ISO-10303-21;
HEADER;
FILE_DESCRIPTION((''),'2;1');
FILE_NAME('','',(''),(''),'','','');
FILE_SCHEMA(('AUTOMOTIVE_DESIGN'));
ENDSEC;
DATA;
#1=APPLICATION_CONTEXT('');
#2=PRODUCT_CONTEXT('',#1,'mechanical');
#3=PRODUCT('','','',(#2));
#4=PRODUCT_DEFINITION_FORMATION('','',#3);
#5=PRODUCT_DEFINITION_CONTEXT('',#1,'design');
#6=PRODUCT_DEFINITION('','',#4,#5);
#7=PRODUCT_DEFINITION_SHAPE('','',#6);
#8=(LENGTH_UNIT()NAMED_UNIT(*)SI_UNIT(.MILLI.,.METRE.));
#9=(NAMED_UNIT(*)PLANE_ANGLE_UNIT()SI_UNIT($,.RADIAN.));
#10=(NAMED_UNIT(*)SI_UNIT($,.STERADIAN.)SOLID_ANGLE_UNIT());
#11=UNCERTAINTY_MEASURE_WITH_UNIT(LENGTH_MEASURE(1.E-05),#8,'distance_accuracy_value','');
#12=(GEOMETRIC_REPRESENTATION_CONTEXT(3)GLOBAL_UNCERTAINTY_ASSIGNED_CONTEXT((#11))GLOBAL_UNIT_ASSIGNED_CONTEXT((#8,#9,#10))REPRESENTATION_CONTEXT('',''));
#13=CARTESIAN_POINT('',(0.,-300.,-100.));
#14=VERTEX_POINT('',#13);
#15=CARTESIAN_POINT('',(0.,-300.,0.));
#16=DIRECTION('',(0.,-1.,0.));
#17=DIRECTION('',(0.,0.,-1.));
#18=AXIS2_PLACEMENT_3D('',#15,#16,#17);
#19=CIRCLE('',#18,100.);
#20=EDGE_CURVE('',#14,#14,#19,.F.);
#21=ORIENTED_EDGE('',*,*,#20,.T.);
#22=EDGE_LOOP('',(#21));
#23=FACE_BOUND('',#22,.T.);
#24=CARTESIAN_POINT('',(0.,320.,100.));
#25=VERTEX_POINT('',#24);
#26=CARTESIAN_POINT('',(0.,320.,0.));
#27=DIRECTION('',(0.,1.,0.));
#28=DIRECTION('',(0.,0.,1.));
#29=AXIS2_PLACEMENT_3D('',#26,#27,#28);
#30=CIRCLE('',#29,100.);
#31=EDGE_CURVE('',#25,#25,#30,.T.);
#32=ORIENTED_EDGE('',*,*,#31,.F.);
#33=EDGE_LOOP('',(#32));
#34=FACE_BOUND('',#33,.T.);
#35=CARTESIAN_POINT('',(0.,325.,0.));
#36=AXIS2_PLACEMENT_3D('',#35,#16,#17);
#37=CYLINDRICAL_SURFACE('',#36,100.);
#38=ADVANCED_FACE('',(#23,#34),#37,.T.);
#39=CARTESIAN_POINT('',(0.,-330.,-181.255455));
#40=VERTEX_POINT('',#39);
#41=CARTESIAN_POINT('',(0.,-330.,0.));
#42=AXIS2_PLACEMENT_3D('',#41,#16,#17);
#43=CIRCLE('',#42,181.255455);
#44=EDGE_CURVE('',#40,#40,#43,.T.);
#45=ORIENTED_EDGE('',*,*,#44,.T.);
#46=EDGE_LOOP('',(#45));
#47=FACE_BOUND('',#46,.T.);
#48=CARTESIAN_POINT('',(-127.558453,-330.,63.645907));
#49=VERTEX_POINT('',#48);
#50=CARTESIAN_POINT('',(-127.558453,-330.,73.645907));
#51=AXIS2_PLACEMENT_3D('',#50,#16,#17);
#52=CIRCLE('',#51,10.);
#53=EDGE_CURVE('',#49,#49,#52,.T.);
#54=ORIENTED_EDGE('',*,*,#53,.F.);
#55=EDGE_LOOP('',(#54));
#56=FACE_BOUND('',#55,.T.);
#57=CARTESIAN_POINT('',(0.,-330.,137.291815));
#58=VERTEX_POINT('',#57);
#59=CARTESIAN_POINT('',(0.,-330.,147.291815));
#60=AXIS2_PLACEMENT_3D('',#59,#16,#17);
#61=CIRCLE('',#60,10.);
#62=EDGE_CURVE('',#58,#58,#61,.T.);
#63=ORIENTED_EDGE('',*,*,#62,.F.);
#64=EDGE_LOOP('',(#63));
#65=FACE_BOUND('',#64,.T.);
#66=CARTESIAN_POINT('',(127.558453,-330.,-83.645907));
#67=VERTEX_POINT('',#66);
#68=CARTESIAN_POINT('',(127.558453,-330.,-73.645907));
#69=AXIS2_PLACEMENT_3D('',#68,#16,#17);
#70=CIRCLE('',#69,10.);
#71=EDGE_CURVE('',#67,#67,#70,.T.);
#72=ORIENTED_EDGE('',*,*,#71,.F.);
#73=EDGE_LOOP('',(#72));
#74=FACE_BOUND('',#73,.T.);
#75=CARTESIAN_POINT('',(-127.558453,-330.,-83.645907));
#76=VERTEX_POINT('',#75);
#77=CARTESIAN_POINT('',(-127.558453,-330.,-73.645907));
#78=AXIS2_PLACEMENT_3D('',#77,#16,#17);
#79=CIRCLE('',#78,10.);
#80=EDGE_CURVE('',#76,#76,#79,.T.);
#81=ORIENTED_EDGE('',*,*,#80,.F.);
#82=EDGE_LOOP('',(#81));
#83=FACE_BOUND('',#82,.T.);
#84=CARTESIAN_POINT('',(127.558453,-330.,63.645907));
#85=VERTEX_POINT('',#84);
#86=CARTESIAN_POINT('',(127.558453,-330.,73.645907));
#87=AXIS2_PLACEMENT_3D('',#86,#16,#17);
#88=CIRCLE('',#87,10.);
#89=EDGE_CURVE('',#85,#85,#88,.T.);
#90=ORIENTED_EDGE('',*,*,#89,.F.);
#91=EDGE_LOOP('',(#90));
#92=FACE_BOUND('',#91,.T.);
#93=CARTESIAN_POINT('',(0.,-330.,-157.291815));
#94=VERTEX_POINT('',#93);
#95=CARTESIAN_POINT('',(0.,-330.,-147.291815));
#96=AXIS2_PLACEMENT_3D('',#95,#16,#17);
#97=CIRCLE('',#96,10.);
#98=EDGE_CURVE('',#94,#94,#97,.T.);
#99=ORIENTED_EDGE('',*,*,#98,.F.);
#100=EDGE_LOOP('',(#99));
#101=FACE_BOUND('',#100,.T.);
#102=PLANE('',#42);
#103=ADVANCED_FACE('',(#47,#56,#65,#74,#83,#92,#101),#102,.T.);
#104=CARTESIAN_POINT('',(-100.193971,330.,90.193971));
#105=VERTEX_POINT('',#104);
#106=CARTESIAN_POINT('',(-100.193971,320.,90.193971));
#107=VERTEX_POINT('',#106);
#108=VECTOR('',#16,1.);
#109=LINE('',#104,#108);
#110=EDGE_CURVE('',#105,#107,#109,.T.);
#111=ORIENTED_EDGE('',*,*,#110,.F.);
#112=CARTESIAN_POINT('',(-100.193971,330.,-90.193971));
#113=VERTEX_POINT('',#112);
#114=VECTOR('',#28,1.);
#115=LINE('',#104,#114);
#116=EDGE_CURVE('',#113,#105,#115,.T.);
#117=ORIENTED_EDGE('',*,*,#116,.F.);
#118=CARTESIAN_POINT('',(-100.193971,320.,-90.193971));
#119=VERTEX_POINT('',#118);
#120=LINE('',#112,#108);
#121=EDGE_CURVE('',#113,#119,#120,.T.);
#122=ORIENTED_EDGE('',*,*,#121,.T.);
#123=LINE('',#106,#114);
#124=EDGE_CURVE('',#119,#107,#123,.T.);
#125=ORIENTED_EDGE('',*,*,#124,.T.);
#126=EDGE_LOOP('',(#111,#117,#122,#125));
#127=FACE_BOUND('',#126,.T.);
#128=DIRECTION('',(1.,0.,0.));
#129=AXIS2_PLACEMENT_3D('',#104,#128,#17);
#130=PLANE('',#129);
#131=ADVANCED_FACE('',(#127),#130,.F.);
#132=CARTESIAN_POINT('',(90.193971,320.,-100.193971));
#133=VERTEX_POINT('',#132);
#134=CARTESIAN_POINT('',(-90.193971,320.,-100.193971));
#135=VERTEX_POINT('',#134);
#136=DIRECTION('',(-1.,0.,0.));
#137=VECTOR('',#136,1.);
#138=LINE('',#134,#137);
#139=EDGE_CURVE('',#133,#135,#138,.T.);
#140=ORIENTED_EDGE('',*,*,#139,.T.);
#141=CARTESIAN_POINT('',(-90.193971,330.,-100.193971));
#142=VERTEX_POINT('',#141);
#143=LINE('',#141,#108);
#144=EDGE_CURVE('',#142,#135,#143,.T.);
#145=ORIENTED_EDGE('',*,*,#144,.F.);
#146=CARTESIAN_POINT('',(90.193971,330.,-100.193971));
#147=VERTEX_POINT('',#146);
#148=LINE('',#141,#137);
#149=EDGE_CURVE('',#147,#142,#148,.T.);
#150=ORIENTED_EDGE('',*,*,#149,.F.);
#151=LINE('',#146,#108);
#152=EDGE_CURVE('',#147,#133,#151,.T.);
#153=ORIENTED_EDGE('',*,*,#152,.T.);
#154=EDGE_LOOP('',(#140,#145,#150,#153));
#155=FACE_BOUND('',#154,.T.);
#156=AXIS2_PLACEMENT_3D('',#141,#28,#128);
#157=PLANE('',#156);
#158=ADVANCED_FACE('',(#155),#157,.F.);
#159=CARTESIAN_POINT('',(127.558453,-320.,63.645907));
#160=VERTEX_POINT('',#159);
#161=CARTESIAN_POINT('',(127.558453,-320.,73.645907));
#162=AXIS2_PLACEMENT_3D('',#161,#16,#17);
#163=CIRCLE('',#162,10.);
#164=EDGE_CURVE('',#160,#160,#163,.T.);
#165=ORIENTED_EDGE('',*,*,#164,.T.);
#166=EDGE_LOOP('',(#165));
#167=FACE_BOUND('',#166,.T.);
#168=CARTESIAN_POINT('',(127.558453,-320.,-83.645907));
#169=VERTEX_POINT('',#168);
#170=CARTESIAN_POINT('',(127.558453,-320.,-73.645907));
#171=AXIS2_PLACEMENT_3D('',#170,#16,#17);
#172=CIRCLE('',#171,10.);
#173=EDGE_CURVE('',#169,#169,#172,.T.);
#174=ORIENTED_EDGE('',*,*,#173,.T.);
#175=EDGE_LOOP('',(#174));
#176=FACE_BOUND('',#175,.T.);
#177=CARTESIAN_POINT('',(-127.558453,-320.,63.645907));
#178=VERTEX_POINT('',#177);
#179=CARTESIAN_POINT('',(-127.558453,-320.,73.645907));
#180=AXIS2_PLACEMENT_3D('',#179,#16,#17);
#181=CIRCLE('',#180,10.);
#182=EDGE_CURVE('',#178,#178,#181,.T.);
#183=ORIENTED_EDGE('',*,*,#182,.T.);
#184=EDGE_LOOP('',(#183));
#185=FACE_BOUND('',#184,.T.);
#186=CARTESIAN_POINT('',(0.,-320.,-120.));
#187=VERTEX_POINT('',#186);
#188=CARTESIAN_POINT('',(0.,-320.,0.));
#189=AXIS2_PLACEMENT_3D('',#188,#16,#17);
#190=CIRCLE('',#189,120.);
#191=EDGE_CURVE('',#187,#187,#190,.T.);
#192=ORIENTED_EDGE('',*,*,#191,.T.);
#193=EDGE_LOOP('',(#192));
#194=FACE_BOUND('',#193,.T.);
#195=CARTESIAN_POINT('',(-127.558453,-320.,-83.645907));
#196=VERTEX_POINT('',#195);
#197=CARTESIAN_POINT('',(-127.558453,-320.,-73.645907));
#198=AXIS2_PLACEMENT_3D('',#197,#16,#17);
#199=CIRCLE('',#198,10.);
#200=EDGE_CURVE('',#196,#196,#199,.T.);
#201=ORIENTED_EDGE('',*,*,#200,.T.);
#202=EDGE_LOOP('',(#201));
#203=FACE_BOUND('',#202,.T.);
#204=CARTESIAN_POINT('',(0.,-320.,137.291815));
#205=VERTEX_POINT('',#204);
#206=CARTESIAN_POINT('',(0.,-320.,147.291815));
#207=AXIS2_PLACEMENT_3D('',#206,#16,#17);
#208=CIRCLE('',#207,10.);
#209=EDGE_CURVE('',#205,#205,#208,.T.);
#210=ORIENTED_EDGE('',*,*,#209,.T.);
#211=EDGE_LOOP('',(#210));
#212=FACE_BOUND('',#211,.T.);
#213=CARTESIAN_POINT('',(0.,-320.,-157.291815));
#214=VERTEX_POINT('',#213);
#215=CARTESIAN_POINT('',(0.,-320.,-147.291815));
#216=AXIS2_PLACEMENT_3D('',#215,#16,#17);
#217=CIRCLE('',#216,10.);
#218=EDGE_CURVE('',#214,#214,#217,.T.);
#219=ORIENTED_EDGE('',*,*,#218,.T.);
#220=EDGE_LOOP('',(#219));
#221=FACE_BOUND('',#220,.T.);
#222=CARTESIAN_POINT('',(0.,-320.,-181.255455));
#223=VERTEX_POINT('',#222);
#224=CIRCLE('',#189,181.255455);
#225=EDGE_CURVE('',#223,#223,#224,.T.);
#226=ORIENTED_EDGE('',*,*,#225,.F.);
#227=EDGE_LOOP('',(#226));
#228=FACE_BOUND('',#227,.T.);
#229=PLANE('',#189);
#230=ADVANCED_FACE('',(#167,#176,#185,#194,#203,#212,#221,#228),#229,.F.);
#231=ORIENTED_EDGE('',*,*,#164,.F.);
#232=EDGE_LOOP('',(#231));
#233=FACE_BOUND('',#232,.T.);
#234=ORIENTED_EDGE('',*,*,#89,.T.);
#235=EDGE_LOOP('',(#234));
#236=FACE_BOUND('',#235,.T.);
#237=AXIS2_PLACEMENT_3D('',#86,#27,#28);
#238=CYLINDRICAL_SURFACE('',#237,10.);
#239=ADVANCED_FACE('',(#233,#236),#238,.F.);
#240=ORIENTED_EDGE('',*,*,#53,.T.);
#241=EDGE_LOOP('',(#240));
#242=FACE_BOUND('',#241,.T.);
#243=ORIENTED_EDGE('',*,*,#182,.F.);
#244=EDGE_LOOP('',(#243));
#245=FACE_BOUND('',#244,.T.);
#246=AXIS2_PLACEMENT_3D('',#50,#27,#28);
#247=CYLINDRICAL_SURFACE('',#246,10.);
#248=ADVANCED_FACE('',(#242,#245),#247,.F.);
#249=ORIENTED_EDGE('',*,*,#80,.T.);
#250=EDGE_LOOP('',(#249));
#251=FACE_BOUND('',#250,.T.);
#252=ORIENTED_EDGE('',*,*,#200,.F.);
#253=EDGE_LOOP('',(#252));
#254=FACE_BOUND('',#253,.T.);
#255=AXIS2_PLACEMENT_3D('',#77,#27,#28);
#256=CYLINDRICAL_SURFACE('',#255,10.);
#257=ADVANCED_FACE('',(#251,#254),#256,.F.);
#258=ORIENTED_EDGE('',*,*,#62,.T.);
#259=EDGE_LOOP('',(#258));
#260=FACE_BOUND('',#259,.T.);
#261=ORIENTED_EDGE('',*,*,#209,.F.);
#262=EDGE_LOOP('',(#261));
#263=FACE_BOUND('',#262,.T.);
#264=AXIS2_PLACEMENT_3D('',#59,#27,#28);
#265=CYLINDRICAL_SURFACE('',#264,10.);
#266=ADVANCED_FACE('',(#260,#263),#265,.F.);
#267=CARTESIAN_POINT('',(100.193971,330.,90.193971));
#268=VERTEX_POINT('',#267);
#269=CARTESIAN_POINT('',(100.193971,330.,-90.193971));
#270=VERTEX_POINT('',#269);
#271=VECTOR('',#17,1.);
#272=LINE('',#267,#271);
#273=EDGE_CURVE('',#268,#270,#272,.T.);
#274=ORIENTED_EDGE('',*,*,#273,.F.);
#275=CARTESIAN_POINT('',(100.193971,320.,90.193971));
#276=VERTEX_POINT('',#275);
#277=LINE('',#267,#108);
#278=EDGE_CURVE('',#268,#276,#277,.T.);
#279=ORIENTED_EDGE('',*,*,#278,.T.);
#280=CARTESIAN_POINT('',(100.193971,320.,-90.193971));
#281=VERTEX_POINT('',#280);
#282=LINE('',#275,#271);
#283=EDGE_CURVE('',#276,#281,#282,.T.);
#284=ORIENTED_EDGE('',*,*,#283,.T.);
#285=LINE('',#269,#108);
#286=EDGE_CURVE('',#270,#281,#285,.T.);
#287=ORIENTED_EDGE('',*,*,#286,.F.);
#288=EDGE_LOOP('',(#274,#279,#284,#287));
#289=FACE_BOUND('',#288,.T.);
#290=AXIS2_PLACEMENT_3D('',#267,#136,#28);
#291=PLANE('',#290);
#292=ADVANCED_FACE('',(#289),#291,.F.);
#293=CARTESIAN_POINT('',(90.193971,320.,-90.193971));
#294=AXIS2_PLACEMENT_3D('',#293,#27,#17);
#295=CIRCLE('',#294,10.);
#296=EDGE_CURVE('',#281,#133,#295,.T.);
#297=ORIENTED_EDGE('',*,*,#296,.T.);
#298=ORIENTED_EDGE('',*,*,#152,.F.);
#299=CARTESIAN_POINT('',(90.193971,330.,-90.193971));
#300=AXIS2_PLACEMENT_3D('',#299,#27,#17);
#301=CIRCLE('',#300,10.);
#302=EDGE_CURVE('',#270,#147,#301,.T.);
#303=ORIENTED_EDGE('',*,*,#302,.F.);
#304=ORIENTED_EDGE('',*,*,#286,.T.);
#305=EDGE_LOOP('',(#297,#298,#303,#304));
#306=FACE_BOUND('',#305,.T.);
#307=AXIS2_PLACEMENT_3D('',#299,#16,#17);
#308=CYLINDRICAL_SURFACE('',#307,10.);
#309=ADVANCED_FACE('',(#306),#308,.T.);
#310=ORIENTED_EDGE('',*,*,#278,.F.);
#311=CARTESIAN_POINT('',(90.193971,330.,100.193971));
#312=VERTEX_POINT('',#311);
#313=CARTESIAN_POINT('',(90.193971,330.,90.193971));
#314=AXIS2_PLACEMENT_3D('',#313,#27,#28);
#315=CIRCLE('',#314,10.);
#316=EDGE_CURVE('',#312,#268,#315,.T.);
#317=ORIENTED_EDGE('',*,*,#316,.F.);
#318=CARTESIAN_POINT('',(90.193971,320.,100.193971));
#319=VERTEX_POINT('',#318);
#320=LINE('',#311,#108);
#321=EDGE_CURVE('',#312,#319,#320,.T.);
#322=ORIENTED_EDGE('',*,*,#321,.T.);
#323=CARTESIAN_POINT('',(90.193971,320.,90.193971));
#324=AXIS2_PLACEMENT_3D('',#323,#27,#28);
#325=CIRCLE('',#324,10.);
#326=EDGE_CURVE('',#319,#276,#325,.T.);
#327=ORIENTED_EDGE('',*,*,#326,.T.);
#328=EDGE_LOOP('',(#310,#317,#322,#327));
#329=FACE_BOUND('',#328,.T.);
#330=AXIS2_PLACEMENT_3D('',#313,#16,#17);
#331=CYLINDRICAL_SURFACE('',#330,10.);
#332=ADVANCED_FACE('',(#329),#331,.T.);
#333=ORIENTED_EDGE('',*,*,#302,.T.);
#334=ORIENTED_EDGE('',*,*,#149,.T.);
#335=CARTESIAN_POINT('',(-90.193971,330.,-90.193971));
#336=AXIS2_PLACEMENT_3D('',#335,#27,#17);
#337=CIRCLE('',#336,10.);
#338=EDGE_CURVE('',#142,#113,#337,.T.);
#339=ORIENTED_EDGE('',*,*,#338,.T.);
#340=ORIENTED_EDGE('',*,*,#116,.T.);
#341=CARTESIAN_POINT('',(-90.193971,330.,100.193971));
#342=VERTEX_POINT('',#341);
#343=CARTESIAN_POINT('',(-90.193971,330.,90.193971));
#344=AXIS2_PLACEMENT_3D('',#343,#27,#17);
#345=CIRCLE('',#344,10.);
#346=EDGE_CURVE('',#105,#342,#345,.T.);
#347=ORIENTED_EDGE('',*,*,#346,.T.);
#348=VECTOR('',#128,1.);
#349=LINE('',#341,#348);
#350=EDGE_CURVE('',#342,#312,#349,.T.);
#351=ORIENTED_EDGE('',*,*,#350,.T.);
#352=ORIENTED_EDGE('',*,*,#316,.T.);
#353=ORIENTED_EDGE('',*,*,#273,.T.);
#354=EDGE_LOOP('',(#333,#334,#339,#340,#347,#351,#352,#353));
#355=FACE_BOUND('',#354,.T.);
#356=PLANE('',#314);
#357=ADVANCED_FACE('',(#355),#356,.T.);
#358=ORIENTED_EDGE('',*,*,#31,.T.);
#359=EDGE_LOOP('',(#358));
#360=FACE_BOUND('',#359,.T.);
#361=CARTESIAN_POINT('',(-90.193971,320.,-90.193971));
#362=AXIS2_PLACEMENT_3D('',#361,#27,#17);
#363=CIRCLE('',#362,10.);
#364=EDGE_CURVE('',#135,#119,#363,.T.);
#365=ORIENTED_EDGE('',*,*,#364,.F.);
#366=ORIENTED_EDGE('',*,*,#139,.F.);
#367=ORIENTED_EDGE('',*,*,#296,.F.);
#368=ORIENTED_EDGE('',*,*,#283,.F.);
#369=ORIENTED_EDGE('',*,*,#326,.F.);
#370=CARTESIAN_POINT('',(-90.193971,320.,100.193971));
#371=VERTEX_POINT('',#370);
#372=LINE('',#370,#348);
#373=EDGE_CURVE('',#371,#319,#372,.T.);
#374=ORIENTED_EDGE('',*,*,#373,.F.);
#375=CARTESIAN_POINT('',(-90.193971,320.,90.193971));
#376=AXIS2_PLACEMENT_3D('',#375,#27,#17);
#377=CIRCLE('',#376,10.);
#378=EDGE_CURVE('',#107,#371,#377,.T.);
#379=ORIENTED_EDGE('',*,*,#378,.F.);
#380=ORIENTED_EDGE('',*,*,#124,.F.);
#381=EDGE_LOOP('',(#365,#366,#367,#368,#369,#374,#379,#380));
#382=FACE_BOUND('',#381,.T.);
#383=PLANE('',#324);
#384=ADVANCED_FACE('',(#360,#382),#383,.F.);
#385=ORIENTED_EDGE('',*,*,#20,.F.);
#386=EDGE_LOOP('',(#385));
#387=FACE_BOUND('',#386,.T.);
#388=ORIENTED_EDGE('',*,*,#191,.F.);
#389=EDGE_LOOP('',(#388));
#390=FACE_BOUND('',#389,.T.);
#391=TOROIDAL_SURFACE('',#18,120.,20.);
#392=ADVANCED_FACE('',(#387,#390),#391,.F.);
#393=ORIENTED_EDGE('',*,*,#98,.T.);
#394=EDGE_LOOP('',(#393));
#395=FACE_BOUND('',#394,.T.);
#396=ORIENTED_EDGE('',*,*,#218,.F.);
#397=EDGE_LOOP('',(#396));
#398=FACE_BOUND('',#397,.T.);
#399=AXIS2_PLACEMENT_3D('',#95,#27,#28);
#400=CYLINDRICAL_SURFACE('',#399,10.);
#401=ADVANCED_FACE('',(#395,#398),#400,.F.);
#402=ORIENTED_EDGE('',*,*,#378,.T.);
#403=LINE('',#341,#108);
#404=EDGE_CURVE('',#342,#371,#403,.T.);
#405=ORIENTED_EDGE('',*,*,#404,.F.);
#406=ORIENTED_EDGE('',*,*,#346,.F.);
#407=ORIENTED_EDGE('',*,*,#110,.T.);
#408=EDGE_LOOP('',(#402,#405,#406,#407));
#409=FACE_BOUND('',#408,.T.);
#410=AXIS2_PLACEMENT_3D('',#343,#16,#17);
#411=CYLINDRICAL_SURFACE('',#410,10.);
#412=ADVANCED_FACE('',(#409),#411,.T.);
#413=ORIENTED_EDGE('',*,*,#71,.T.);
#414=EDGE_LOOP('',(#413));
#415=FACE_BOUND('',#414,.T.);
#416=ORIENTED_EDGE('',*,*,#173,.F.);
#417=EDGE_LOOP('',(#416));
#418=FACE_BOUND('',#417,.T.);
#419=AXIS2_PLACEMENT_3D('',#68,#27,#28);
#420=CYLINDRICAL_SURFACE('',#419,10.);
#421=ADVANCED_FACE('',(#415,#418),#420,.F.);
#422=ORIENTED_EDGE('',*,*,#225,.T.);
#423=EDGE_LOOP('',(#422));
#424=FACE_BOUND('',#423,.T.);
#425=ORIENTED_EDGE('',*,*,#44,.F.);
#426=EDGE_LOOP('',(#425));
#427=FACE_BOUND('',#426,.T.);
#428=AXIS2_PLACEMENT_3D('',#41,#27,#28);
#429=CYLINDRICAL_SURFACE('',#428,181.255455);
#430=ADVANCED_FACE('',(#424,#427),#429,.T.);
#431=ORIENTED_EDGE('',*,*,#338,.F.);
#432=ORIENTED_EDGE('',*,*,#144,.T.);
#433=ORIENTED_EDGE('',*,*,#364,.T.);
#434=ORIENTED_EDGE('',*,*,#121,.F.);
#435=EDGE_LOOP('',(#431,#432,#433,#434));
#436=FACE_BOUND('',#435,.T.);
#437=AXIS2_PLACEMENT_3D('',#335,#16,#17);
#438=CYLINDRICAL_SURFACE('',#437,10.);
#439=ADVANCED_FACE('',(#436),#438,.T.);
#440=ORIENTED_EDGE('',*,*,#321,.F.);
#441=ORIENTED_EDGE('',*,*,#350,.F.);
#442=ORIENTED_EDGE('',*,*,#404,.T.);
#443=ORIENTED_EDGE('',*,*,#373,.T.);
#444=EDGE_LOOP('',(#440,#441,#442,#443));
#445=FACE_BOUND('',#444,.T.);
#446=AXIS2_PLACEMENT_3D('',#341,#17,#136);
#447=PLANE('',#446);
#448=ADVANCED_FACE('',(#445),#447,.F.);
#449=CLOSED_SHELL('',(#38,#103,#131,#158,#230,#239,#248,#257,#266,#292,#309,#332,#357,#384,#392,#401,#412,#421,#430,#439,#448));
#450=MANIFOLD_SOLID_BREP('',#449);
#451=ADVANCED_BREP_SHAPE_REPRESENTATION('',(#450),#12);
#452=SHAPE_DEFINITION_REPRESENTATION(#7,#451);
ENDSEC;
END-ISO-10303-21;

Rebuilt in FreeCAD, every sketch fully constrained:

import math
import FreeCAD as App
import Part
import Sketcher
Q = App.Units.Quantity


def edges_at(feature, points):
    """Names of the edges that pass closest to the given points."""
    edges = feature.Shape.Edges
    near = lambda p: min(range(len(edges)), key=lambda i: edges[i].distToShape(Part.Vertex(*p))[0])
    return sorted({f"Edge{near(p) + 1}" for p in points})

doc = App.newDocument("Part")
body = doc.addObject("PartDesign::Body", "Body")

# Sketch on XZ plane
sketch1 = body.newObject("Sketcher::SketchObject", "Sketch")
sketch1.AttachmentSupport = (doc.getObject("XZ_Plane"), [""])
sketch1.MapMode = "FlatFace"
sketch1.addGeometry(Part.Circle(App.Vector(0, 0, 0), App.Vector(0, 0, 1), 100), False)
sketch1.addConstraint([
    Sketcher.Constraint("Coincident", 0, 3, -1, 1),
    Sketcher.Constraint("Diameter", 0, Q("200 mm")),
])
pad1 = body.newObject("PartDesign::Pad", "Pad")
pad1.Profile = sketch1
pad1.Length = 650
pad1.Midplane = True

# Sketch on XZ plane
sketch2 = body.newObject("Sketcher::SketchObject", "Sketch001")
sketch2.AttachmentSupport = (doc.getObject("XZ_Plane"), [""])
sketch2.MapMode = "FlatFace"
sketch2.AttachmentOffset = App.Placement(App.Vector(0, 0, 325), App.Rotation())
sketch2.addGeometry([
    Part.Circle(App.Vector(0, 0, 0), App.Vector(0, 0, 1), 181),  # 0
    Part.Circle(App.Vector(-128, 74, 0), App.Vector(0, 0, 1), 10),  # 1
    Part.Circle(App.Vector(-128, -74, 0), App.Vector(0, 0, 1), 10),  # 2
    Part.Circle(App.Vector(0, 147, 0), App.Vector(0, 0, 1), 10),  # 3
    Part.Circle(App.Vector(128, 74, 0), App.Vector(0, 0, 1), 10),  # 4
    Part.Circle(App.Vector(0, -147, 0), App.Vector(0, 0, 1), 10),  # 5
    Part.Circle(App.Vector(128, -74, 0), App.Vector(0, 0, 1), 10),  # 6
], False)
sketch2.addConstraint([
    Sketcher.Constraint("Coincident", 0, 3, -1, 1),
    Sketcher.Constraint("Equal", 1, 2),
    Sketcher.Constraint("Equal", 2, 3),
    Sketcher.Constraint("Equal", 3, 4),
    Sketcher.Constraint("Equal", 4, 5),
    Sketcher.Constraint("Equal", 5, 6),
    Sketcher.Constraint("Symmetric", 2, 3, 4, 3, -1, 1),
    Sketcher.Constraint("Symmetric", 3, 3, 5, 3, -1, 1),
    Sketcher.Constraint("Symmetric", 1, 3, 6, 3, -1, 1),
    Sketcher.Constraint("Symmetric", 1, 3, 4, 3, -2),
    Sketcher.Constraint("PointOnObject", 3, 3, -2),
    Sketcher.Constraint("Diameter", 1, Q("20 mm")),
    Sketcher.Constraint("Diameter", 0, Q("362.51091 mm")),
    Sketcher.Constraint("DistanceY", 5, 3, 3, 3, Q("294.58363 mm")),
    Sketcher.Constraint("DistanceX", 1, 3, -1, 1, Q("127.558453 mm")),
    Sketcher.Constraint("DistanceY", -1, 1, 1, 3, Q("73.645907 mm")),
])
pad2 = body.newObject("PartDesign::Pad", "Pad001")
pad2.Profile = sketch2
pad2.Length = 10
pad2.Midplane = True
doc.recompute()

fillet = body.newObject("PartDesign::Fillet", "Fillet")
fillet.Base = (pad2, edges_at(pad2, [(0, -320, -100)]))
fillet.Radius = 20

# Sketch on XZ plane
sketch3 = body.newObject("Sketcher::SketchObject", "Sketch002")
sketch3.AttachmentSupport = (doc.getObject("XZ_Plane"), [""])
sketch3.MapMode = "FlatFace"
sketch3.AttachmentOffset = App.Placement(App.Vector(0, 0, -325), App.Rotation())
sketch3.addGeometry([
    Part.LineSegment(App.Vector(-90, 100, 0), App.Vector(90, 100, 0)),  # 0
    Part.ArcOfCircle(Part.Circle(App.Vector(90, 90, 0), App.Vector(0, 0, 1), 10), math.radians(0), math.radians(90)),  # 1
    Part.LineSegment(App.Vector(100, 90, 0), App.Vector(100, -90, 0)),  # 2
    Part.ArcOfCircle(Part.Circle(App.Vector(90, -90, 0), App.Vector(0, 0, 1), 10), math.radians(-90), math.radians(0)),  # 3
    Part.LineSegment(App.Vector(90, -100, 0), App.Vector(-90, -100, 0)),  # 4
    Part.ArcOfCircle(Part.Circle(App.Vector(-90, -90, 0), App.Vector(0, 0, 1), 10), math.radians(-180), math.radians(-90)),  # 5
    Part.LineSegment(App.Vector(-100, -90, 0), App.Vector(-100, 90, 0)),  # 6
    Part.ArcOfCircle(Part.Circle(App.Vector(-90, 90, 0), App.Vector(0, 0, 1), 10), math.radians(90), math.radians(180)),  # 7
], False)
sketch3.addConstraint([
    Sketcher.Constraint("Tangent", 0, 2, 1, 2),
    Sketcher.Constraint("Tangent", 1, 1, 2, 1),
    Sketcher.Constraint("Tangent", 2, 2, 3, 2),
    Sketcher.Constraint("Tangent", 3, 1, 4, 1),
    Sketcher.Constraint("Tangent", 4, 2, 5, 2),
    Sketcher.Constraint("Tangent", 5, 1, 6, 1),
    Sketcher.Constraint("Tangent", 6, 2, 7, 2),
    Sketcher.Constraint("Tangent", 7, 1, 0, 1),
    Sketcher.Constraint("Horizontal", 0),
    Sketcher.Constraint("Vertical", 2),
    Sketcher.Constraint("Horizontal", 4),
    Sketcher.Constraint("Vertical", 6),
    Sketcher.Constraint("Equal", 1, 3),
    Sketcher.Constraint("Equal", 3, 5),
    Sketcher.Constraint("Equal", 5, 7),
    Sketcher.Constraint("Symmetric", 1, 3, 5, 3, -1, 1),
    Sketcher.Constraint("Equal", 4, 2),
    Sketcher.Constraint("Radius", 1, Q("10 mm")),
    Sketcher.Constraint("DistanceX", 0, 1, 0, 2, Q("180.387941 mm")),
])
pad3 = body.newObject("PartDesign::Pad", "Pad002")
pad3.Profile = sketch3
pad3.Length = 10
pad3.Midplane = True

doc.recompute()
